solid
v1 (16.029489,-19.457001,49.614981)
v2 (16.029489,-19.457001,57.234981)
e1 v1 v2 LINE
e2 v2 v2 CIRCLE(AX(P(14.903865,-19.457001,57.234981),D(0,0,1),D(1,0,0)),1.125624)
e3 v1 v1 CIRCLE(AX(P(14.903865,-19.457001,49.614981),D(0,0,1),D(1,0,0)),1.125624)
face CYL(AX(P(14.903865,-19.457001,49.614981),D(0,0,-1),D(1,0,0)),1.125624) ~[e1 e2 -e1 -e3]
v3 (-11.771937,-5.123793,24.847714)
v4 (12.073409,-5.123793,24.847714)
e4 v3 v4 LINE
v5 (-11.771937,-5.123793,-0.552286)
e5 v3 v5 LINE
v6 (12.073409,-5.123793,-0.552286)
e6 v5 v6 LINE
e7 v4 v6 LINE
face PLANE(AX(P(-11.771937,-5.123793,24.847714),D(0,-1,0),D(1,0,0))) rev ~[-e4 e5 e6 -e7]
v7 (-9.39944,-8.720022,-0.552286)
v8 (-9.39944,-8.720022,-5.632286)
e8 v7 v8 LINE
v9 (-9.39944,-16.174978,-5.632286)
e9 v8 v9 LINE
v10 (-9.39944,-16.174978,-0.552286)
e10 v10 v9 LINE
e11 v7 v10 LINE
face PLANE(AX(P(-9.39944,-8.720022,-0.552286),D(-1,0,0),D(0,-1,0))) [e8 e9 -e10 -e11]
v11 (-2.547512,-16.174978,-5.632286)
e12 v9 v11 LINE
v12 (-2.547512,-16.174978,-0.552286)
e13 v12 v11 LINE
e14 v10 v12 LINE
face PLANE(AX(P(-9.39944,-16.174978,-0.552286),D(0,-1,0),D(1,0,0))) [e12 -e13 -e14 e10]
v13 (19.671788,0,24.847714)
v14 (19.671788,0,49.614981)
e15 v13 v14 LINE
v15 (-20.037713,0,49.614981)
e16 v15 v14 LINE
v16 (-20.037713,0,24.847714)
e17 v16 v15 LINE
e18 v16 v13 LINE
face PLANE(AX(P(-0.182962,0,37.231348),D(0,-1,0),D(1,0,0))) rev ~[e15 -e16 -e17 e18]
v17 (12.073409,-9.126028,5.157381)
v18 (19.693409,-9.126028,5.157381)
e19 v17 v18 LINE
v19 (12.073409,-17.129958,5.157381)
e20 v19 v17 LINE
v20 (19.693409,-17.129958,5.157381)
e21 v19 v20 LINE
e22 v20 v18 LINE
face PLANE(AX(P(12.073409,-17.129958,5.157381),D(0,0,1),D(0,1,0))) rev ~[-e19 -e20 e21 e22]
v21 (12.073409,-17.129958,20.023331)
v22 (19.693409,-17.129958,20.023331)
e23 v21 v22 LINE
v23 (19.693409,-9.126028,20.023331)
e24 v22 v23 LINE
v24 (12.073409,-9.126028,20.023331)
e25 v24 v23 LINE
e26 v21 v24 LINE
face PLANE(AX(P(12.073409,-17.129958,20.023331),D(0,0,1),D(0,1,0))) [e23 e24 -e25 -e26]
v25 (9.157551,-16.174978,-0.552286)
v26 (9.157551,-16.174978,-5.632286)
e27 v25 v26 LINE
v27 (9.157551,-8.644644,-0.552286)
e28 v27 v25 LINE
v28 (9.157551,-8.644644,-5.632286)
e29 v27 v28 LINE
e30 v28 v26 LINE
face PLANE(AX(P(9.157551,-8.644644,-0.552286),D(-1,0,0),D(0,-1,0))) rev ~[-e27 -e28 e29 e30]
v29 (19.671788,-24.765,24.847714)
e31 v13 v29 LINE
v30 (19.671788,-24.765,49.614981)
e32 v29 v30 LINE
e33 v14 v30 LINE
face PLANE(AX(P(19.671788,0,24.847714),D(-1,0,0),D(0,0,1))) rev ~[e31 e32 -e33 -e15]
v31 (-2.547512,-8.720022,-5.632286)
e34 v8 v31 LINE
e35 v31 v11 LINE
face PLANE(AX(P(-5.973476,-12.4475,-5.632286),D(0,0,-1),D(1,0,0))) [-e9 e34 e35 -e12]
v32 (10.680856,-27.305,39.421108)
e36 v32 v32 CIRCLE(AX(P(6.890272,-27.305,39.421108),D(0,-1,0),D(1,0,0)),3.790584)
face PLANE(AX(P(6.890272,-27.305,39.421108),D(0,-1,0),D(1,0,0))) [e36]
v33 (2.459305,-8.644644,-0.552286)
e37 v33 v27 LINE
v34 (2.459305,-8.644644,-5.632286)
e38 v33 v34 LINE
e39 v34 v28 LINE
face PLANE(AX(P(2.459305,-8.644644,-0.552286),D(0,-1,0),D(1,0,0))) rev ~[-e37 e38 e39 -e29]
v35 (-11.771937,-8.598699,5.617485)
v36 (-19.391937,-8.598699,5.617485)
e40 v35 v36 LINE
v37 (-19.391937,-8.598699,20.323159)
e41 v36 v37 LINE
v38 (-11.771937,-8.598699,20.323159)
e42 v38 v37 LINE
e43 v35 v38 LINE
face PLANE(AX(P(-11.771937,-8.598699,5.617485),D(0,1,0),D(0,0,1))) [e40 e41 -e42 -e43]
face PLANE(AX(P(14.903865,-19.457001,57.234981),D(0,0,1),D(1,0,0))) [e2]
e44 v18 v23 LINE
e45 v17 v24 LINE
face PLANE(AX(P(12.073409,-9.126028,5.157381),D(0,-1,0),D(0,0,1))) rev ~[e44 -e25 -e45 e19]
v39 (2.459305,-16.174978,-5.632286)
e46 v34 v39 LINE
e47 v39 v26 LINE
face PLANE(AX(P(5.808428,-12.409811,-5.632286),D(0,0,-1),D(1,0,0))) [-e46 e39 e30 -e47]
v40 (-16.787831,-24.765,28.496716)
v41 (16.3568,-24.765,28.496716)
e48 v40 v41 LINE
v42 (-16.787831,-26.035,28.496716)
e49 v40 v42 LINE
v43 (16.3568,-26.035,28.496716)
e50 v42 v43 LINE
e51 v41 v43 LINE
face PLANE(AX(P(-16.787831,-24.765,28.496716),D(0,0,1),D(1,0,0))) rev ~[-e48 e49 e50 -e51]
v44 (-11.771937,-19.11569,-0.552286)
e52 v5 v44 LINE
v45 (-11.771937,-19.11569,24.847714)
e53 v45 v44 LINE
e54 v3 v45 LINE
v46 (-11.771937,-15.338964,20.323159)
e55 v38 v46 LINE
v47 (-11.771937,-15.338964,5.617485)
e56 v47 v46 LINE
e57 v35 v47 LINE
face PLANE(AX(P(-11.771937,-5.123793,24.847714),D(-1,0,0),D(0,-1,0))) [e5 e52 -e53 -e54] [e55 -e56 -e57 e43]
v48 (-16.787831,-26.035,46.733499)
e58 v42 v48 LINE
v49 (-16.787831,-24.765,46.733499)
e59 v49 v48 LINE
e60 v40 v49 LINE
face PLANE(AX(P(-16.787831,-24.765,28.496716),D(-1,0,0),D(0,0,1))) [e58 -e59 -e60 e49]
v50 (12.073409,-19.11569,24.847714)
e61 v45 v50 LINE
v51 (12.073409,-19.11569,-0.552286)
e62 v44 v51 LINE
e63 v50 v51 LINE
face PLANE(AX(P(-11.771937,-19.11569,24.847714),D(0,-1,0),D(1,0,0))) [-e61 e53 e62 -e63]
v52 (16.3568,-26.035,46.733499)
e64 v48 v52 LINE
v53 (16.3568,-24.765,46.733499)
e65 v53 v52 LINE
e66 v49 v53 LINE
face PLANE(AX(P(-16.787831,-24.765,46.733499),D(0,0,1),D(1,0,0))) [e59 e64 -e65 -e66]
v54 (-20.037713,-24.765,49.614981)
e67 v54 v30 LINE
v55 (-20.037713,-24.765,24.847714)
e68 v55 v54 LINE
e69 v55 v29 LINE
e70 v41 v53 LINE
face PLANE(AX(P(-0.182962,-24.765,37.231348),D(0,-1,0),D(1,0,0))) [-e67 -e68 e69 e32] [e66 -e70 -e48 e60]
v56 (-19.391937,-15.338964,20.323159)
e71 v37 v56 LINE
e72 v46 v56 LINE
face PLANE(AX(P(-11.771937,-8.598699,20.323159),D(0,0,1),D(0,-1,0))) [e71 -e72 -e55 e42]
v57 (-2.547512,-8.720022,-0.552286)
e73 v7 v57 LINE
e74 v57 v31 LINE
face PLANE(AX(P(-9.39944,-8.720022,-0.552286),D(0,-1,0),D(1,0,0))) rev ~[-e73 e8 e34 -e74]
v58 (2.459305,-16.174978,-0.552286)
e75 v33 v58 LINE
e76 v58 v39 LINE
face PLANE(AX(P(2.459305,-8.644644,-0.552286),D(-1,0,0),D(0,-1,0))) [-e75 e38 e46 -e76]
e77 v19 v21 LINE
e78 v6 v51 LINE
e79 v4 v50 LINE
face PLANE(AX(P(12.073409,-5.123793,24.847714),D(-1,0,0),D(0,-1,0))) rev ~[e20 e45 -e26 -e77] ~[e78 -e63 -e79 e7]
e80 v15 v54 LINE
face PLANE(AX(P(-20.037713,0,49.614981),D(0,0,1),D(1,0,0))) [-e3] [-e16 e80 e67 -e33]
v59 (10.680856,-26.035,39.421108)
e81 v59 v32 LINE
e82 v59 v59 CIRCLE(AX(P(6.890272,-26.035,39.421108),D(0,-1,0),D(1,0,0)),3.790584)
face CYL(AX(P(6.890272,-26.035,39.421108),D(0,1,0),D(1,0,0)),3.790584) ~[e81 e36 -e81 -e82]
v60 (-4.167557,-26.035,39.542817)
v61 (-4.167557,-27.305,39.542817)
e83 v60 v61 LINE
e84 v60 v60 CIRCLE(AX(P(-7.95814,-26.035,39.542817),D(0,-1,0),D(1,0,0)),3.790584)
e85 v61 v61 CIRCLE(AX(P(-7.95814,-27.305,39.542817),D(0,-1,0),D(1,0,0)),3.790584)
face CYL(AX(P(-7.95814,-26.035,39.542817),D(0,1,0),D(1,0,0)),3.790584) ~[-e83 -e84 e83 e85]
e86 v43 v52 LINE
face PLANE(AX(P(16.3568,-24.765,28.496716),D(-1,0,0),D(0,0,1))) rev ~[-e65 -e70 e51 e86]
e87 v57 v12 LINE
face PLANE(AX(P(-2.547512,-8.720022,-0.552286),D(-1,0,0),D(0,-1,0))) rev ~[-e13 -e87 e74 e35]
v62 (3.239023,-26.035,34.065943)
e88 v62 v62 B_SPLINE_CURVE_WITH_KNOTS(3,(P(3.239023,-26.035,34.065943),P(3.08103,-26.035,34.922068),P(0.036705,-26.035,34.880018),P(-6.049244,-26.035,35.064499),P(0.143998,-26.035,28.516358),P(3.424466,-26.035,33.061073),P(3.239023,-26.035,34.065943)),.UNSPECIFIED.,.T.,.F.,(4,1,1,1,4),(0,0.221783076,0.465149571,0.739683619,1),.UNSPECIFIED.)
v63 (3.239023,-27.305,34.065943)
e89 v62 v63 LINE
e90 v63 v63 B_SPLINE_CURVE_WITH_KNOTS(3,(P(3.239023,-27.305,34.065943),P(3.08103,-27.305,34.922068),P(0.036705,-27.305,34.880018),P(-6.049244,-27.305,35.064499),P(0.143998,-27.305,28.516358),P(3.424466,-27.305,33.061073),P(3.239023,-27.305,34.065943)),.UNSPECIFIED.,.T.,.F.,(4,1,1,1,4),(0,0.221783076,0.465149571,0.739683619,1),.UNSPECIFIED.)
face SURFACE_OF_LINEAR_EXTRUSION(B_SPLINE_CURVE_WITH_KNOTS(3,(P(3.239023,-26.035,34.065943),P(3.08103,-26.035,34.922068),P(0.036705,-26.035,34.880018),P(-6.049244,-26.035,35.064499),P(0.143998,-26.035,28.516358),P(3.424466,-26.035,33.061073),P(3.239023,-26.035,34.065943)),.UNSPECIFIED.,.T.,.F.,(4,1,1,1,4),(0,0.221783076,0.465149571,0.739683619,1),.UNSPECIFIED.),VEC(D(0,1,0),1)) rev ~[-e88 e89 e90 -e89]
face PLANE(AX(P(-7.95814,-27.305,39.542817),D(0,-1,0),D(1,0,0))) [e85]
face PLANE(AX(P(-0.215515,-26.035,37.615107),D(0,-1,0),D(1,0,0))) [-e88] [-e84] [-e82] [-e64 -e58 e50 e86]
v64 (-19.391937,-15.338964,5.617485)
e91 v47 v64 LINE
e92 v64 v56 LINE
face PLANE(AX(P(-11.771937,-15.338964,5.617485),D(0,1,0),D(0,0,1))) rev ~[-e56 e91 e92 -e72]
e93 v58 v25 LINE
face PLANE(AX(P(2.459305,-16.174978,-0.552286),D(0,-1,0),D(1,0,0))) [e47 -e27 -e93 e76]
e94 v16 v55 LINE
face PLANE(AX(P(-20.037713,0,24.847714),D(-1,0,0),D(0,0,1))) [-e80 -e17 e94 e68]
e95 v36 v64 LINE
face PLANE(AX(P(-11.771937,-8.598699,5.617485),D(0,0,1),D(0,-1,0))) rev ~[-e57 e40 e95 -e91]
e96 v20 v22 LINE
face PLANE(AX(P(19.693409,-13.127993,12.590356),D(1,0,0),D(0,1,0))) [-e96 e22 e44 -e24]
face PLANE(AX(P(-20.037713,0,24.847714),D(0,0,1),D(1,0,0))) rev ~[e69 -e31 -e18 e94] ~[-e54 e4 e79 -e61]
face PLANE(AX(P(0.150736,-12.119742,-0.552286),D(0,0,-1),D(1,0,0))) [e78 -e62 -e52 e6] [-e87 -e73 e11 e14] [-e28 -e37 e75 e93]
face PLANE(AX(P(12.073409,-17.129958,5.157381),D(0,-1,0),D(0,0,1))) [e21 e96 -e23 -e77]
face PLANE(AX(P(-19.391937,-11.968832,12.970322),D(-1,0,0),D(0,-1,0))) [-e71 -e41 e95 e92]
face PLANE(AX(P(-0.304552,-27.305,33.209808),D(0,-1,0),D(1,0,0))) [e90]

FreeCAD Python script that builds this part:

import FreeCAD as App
import Part
import Sketcher
from FreeCAD import Vector
Q = App.Units.Quantity


def add_polygon(sketch, points):
    """Adds a closed chain of lines whose ends are joined by coincident constraints."""
    first, n = sketch.GeometryCount, len(points)
    for a, b in zip(points, points[1:] + points[:1]):
        sketch.addGeometry(Part.LineSegment(App.Vector(*a, 0), App.Vector(*b, 0)), False)
    for i in range(n):
        sketch.addConstraint(Sketcher.Constraint("Coincident", first + i, 2, first + (i + 1) % n, 1))

doc = App.newDocument("Part")
body = doc.addObject("PartDesign::Body", "Body")

# Sketch on XZ plane
sketch1 = doc.addObject("Sketcher::SketchObject", "Sketch")
body.addObject(sketch1)
sketch1.AttachmentSupport = (doc.XZ_Plane, [""])
sketch1.MapMode = "FlatFace"
add_polygon(sketch1, [(-20, 50), (-20, 25), (20, 25), (20, 50)])  # lines 0-3
sketch1.addConstraint([
    Sketcher.Constraint("Vertical", 0),
    Sketcher.Constraint("Horizontal", 1),
    Sketcher.Constraint("Vertical", 2),
    Sketcher.Constraint("Horizontal", 3),
    Sketcher.Constraint("DistanceX", 1, 1, 1, 2, 39.709501),
    Sketcher.Constraint("DistanceY", 0, 2, 0, 1, 24.767267),
    Sketcher.Constraint("DistanceX", -1, 1, 1, 2, 19.671788),
    Sketcher.Constraint("DistanceY", -1, 1, 2, 2, 49.614981),
])
pad1 = doc.addObject("PartDesign::Pad", "Pad")
body.addObject(pad1)
pad1.Profile = sketch1
pad1.Length = Q("0.975 in")

# Sketch on XY plane
sketch2 = doc.addObject("Sketcher::SketchObject", "Sketch001")
body.addObject(sketch2)
sketch2.AttachmentSupport = (doc.XY_Plane, [""])
sketch2.MapMode = "FlatFace"
sketch2.AttachmentOffset = App.Placement(Vector(0, 0, 24.847714), App.Rotation())
add_polygon(sketch2, [(-12, -19), (-12, -5), (12, -5), (12, -19)])  # lines 0-3
sketch2.addConstraint([
    Sketcher.Constraint("Vertical", 0),
    Sketcher.Constraint("Horizontal", 1),
    Sketcher.Constraint("Vertical", 2),
    Sketcher.Constraint("Horizontal", 3),
    Sketcher.Constraint("DistanceX", 1, 1, 1, 2, 23.845346),
    Sketcher.Constraint("DistanceY", 0, 1, 0, 2, 13.991897),
    Sketcher.Constraint("DistanceX", -1, 1, 1, 2, 12.073409),
    Sketcher.Constraint("DistanceY", 2, 2, -1, 1, 19.11569),
])
pad2 = doc.addObject("PartDesign::Pad", "Pad001")
body.addObject(pad2)
pad2.Profile = sketch2
pad2.Length = Q("1 in")
pad2.Reversed = True

# Sketch on YZ plane
sketch3 = doc.addObject("Sketcher::SketchObject", "Sketch002")
body.addObject(sketch3)
sketch3.AttachmentSupport = (doc.YZ_Plane, [""])
sketch3.MapMode = "FlatFace"
sketch3.AttachmentOffset = App.Placement(Vector(0, 0, -11.771937), App.Rotation())
add_polygon(sketch3, [(-9, 20), (-9, 6), (-15, 6), (-15, 20)])  # lines 0-3
sketch3.addConstraint([
    Sketcher.Constraint("Vertical", 0),
    Sketcher.Constraint("Horizontal", 1),
    Sketcher.Constraint("Vertical", 2),
    Sketcher.Constraint("Horizontal", 3),
    Sketcher.Constraint("DistanceX", 0, 2, -1, 1, 8.598699),
    Sketcher.Constraint("DistanceX", 1, 2, 1, 1, 6.740265),
    Sketcher.Constraint("DistanceY", 0, 2, 0, 1, 14.705674),
    Sketcher.Constraint("DistanceY", -1, 1, 2, 2, 20.323159),
])
pad3 = doc.addObject("PartDesign::Pad", "Pad002")
body.addObject(pad3)
pad3.Profile = sketch3
pad3.Length = Q("0.3 in")
pad3.Reversed = True

# Sketch on YZ plane
sketch4 = doc.addObject("Sketcher::SketchObject", "Sketch003")
body.addObject(sketch4)
sketch4.AttachmentSupport = (doc.YZ_Plane, [""])
sketch4.MapMode = "FlatFace"
sketch4.AttachmentOffset = App.Placement(Vector(0, 0, 12.073409), App.Rotation())
add_polygon(sketch4, [(-17, 20), (-17, 5), (-9, 5), (-9, 20)])  # lines 0-3
sketch4.addConstraint([
    Sketcher.Constraint("Vertical", 0),
    Sketcher.Constraint("Horizontal", 1),
    Sketcher.Constraint("Vertical", 2),
    Sketcher.Constraint("Horizontal", 3),
    Sketcher.Constraint("DistanceX", 1, 1, 1, 2, 8.00393),
    Sketcher.Constraint("DistanceY", 0, 2, 0, 1, 14.86595),
    Sketcher.Constraint("DistanceY", -1, 1, 0, 2, 5.157381),
    Sketcher.Constraint("DistanceX", 1, 2, -1, 1, 9.126028),
])
pad4 = doc.addObject("PartDesign::Pad", "Pad003")
body.addObject(pad4)
pad4.Profile = sketch4
pad4.Length = Q("0.3 in")

# Sketch on XY plane
sketch5 = doc.addObject("Sketcher::SketchObject", "Sketch004")
body.addObject(sketch5)
sketch5.AttachmentSupport = (doc.XY_Plane, [""])
sketch5.MapMode = "FlatFace"
sketch5.AttachmentOffset = App.Placement(Vector(0, 0, -0.552286), App.Rotation())
add_polygon(sketch5, [(-9, -16), (-9, -9), (-3, -9), (-3, -16)])  # lines 0-3
add_polygon(sketch5, [(2, -16), (2, -9), (9, -9), (9, -16)])  # lines 4-7
sketch5.addConstraint([
    Sketcher.Constraint("Vertical", 0),
    Sketcher.Constraint("Horizontal", 1),
    Sketcher.Constraint("Vertical", 2),
    Sketcher.Constraint("Horizontal", 3),
    Sketcher.Constraint("Vertical", 4),
    Sketcher.Constraint("Horizontal", 5),
    Sketcher.Constraint("Vertical", 6),
    Sketcher.Constraint("Horizontal", 7),
    Sketcher.Constraint("Horizontal", 3, 2, 6, 2),
    Sketcher.Constraint("DistanceX", 1, 1, 1, 2, 6.851929),
    Sketcher.Constraint("DistanceX", 5, 1, 5, 2, 6.698246),
    Sketcher.Constraint("DistanceY", 0, 1, 0, 2, 7.454956),
    Sketcher.Constraint("DistanceY", 4, 1, 4, 2, 7.530333),
    Sketcher.Constraint("DistanceX", 0, 2, -1, 1, 9.39944),
    Sketcher.Constraint("DistanceY", 0, 2, -1, 1, 8.720022),
    Sketcher.Constraint("DistanceX", -1, 1, 5, 2, 9.157551),
])
pad5 = doc.addObject("PartDesign::Pad", "Pad004")
body.addObject(pad5)
pad5.Profile = sketch5
pad5.Length = Q("0.2 in")
pad5.Reversed = True

# Sketch on XZ plane
sketch6 = doc.addObject("Sketcher::SketchObject", "Sketch005")
body.addObject(sketch6)
sketch6.AttachmentSupport = (doc.XZ_Plane, [""])
sketch6.MapMode = "FlatFace"
sketch6.AttachmentOffset = App.Placement(Vector(0, 0, 0.975 * 25.4), App.Rotation())
add_polygon(sketch6, [(-17, 47), (-17, 28), (16, 28), (16, 47)])  # lines 0-3
sketch6.addConstraint([
    Sketcher.Constraint("Vertical", 0),
    Sketcher.Constraint("Horizontal", 1),
    Sketcher.Constraint("Vertical", 2),
    Sketcher.Constraint("Horizontal", 3),
    Sketcher.Constraint("DistanceX", 1, 1, 1, 2, 33.14463),
    Sketcher.Constraint("DistanceX", -1, 1, 1, 2, 16.3568),
    Sketcher.Constraint("DistanceY", -1, 1, 2, 2, 46.733499),
    Sketcher.Constraint("DistanceY", 0, 2, 0, 1, 18.236782),
])
pad6 = doc.addObject("PartDesign::Pad", "Pad005")
body.addObject(pad6)
pad6.Profile = sketch6
pad6.Length = Q("0.05 in")

# Sketch on XZ plane
sketch7 = doc.addObject("Sketcher::SketchObject", "Sketch006")
body.addObject(sketch7)
sketch7.AttachmentSupport = (doc.XZ_Plane, [""])
sketch7.MapMode = "FlatFace"
sketch7.AttachmentOffset = App.Placement(Vector(0, 0, 1.025 * 25.4), App.Rotation())
sketch7.addGeometry([
    Part.Circle(Vector(-7.95814, 39.542817, 0), Vector(0, 0, 1), 3.790584),
    Part.Circle(Vector(6.890272, 39.421108, 0), Vector(0, 0, 1), 3.790584),
    Part.BSplineCurve([Vector(3.239023, 34.065943, 0), Vector(3.08103, 34.922068, 0), Vector(0.036705, 34.880018, 0), Vector(-6.049244, 35.064499, 0), Vector(0.143998, 28.516358, 0), Vector(3.424466, 33.061073, 0), Vector(3.239023, 34.065943, 0)], [4, 1, 1, 1, 4], [0, 0.221783076, 0.465149571, 0.739683619, 1], False, 3, [1, 1, 1, 1, 1, 1, 1], False),
], False)
sketch7.addConstraint([
    Sketcher.Constraint("Block", 2),
    Sketcher.Constraint("Equal", 0, 1),
    Sketcher.Constraint("Diameter", 1, 7.581168),
    Sketcher.Constraint("DistanceX", 0, 3, -1, 1, 7.95814),
    Sketcher.Constraint("DistanceX", -1, 1, 1, 3, 6.890272),
    Sketcher.Constraint("DistanceY", 1, 3, 0, 3, 0.121709),
    Sketcher.Constraint("DistanceY", -1, 1, 0, 3, 39.542817),
])
pad7 = doc.addObject("PartDesign::Pad", "Pad006")
body.addObject(pad7)
pad7.Profile = sketch7
pad7.Length = Q("0.05 in")

# Sketch on XY plane
sketch8 = doc.addObject("Sketcher::SketchObject", "Sketch007")
body.addObject(sketch8)
sketch8.AttachmentSupport = (doc.XY_Plane, [""])
sketch8.MapMode = "FlatFace"
sketch8.AttachmentOffset = App.Placement(Vector(0, 0, 49.614981), App.Rotation())
sketch8.addGeometry(Part.Circle(Vector(14.9, -19.5, 0), Vector(0, 0, 1), 1.1), False)
sketch8.addConstraint([
    Sketcher.Constraint("Diameter", 0, 2.251249),
    Sketcher.Constraint("DistanceY", 0, 3, -1, 1, 19.457001),
    Sketcher.Constraint("DistanceX", -1, 1, 0, 3, 14.903865),
])
pad8 = doc.addObject("PartDesign::Pad", "Pad007")
body.addObject(pad8)
pad8.Profile = sketch8
pad8.Length = Q("0.3 in")

doc.recompute()
